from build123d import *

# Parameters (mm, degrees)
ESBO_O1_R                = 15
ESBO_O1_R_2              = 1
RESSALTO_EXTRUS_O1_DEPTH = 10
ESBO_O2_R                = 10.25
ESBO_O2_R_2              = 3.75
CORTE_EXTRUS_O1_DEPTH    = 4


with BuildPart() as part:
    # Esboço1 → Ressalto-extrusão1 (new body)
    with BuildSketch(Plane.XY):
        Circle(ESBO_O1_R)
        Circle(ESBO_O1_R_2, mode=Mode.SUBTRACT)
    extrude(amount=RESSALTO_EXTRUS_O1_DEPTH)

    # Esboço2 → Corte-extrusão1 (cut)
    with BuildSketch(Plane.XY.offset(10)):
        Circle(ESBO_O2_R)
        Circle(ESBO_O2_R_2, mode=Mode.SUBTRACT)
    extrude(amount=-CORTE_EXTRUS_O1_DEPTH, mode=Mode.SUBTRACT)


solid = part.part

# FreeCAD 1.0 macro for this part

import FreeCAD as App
import Part
import Sketcher

V = App.Vector
Q = App.Units.Quantity

doc = App.newDocument("Part")
body = doc.addObject("PartDesign::Body", "Body")

# Sketch on XY plane
sketch1 = doc.addObject("Sketcher::SketchObject", "Sketch")
body.addObject(sketch1)
sketch1.AttachmentSupport = (doc.XY_Plane, [""])
sketch1.MapMode = "FlatFace"
sketch1.addGeometry(Part.Circle(V(0, 0, 0), V(0, 0, 1), 15), False)
sketch1.addGeometry(Part.Circle(V(0, 0, 0), V(0, 0, 1), 1), False)
sketch1.addConstraint(Sketcher.Constraint("Coincident", 0, 3, -1, 1))
sketch1.addConstraint(Sketcher.Constraint("Coincident", 1, 3, -1, 1))
sketch1.addConstraint(Sketcher.Constraint("Diameter", 0, Q("30 mm")))
sketch1.addConstraint(Sketcher.Constraint("Diameter", 1, Q("2 mm")))
pad1 = doc.addObject("PartDesign::Pad", "Pad")
body.addObject(pad1)
pad1.Profile = sketch1
pad1.Length = 10

# Sketch on XY plane
sketch2 = doc.addObject("Sketcher::SketchObject", "Sketch001")
body.addObject(sketch2)
sketch2.AttachmentSupport = (doc.XY_Plane, [""])
sketch2.MapMode = "FlatFace"
sketch2.AttachmentOffset = App.Placement(V(0, 0, 10), App.Rotation())
sketch2.addGeometry(Part.Circle(V(0, 0, 0), V(0, 0, 1), 10.2), False)
sketch2.addGeometry(Part.Circle(V(0, 0, 0), V(0, 0, 1), 3.8), False)
sketch2.addConstraint(Sketcher.Constraint("Coincident", 0, 3, -1, 1))
sketch2.addConstraint(Sketcher.Constraint("Coincident", 1, 3, -1, 1))
sketch2.addConstraint(Sketcher.Constraint("Diameter", 0, Q("20.5 mm")))
sketch2.addConstraint(Sketcher.Constraint("Diameter", 1, Q("7.5 mm")))
pocket1 = doc.addObject("PartDesign::Pocket", "Pocket")
body.addObject(pocket1)
pocket1.Profile = sketch2
pocket1.Length = 4

doc.recompute()
